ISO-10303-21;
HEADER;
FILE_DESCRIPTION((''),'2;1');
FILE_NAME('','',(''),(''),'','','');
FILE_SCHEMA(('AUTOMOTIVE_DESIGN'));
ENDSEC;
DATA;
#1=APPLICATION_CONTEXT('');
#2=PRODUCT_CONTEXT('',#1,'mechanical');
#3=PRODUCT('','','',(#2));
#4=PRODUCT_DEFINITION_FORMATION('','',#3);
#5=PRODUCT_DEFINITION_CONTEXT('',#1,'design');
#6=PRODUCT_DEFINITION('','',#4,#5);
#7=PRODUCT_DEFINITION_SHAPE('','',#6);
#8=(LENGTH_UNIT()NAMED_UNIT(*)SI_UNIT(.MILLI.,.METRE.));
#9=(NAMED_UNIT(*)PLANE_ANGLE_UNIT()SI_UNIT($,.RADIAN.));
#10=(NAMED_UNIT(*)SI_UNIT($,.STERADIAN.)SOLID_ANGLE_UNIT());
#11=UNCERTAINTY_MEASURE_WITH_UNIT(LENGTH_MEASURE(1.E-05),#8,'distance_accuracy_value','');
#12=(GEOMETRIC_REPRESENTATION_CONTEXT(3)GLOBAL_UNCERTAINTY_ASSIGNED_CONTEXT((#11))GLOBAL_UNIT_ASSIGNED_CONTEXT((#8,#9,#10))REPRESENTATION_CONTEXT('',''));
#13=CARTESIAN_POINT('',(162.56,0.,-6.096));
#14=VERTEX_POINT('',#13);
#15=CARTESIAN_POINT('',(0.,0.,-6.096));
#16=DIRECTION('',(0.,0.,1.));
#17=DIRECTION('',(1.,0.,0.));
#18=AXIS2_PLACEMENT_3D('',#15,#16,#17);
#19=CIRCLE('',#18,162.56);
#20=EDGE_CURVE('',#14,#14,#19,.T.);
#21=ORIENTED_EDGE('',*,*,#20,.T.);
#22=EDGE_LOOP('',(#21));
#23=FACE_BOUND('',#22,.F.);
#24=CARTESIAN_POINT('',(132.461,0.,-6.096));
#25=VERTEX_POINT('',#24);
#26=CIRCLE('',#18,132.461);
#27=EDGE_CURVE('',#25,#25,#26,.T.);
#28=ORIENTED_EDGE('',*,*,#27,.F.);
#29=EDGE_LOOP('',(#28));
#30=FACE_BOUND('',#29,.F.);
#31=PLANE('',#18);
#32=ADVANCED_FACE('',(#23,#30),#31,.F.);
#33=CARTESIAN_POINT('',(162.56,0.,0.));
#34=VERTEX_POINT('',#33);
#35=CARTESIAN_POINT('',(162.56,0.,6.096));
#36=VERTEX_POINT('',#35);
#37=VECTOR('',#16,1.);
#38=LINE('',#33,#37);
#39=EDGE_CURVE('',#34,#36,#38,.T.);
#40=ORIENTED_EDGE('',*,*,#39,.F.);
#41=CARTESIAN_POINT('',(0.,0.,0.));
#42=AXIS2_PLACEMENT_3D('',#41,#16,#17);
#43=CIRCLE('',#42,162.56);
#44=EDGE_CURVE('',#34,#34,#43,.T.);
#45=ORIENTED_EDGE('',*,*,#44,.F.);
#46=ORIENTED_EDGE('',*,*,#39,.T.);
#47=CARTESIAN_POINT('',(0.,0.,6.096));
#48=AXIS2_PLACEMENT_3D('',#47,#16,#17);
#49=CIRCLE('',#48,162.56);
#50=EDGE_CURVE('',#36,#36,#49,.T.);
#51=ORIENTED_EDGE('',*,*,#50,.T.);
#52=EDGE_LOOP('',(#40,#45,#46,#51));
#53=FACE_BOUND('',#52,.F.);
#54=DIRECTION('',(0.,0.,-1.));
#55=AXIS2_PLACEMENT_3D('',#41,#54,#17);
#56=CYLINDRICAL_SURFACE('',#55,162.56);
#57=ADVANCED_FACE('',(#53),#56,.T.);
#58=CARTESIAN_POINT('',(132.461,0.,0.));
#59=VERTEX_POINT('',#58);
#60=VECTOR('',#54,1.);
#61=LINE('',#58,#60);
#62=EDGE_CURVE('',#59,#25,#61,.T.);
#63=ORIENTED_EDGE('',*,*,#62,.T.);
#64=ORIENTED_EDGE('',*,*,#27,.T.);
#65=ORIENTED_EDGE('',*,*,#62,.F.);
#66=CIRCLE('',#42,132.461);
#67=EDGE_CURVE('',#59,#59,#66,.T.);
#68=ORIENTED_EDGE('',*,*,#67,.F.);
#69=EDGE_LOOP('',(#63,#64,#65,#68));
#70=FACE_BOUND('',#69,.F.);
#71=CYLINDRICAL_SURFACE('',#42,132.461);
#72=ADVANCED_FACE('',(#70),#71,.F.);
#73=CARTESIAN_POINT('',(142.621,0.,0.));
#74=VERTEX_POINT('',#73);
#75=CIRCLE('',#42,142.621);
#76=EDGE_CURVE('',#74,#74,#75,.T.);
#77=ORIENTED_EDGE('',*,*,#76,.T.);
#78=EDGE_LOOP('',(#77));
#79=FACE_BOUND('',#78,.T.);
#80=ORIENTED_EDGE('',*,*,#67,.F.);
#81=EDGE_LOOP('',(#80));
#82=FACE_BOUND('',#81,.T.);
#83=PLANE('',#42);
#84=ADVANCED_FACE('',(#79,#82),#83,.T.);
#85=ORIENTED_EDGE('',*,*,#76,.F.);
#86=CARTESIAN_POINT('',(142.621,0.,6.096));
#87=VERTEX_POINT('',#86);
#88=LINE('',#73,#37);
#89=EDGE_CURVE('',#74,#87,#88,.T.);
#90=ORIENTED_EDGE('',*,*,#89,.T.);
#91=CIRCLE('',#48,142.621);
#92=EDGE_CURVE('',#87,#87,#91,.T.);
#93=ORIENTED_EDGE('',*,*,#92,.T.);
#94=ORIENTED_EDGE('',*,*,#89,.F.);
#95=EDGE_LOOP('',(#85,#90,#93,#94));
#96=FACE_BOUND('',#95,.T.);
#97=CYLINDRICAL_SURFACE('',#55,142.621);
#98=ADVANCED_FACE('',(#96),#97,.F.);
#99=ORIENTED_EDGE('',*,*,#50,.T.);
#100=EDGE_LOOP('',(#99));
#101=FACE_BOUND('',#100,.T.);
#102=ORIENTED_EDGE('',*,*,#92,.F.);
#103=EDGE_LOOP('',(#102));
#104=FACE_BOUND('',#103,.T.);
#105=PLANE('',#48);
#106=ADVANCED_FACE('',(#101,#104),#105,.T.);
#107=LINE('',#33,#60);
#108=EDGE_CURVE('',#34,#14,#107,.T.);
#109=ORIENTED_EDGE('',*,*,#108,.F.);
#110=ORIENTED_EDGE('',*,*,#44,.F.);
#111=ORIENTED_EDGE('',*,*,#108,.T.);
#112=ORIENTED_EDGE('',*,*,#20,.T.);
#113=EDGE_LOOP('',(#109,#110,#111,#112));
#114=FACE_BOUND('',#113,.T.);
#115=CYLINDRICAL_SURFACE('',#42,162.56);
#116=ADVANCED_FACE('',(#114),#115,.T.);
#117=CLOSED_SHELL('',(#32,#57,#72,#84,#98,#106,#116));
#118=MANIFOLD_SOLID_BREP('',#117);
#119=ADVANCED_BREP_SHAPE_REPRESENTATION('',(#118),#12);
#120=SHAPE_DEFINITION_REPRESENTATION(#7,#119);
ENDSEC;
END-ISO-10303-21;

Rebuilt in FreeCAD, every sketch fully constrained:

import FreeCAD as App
import Part
import Sketcher
Q = App.Units.Quantity

doc = App.newDocument("Part")
params = doc.addObject("Spreadsheet::Sheet", "Params")
for row, (alias, value) in enumerate([
    ("sketch1_diameter", "12.8 in"),
    ("sketch1_diameter2", "10.43 in"),
    ("pad1_length", "0.24 in"),
    ("sketch2_diameter", "12.8 in"),
    ("sketch2_diameter2", "11.23 in"),
    ("pad2_length", "0.24 in"),
], start=1):
    params.set(f"A{row}", alias)
    params.set(f"B{row}", "=" + value)
    params.setAlias(f"B{row}", alias)

body = doc.addObject("PartDesign::Body", "Body")

# Sketch on XY plane
sketch1 = body.newObject("Sketcher::SketchObject", "Sketch")
sketch1.AttachmentSupport = (doc.getObject("XY_Plane"), [""])
sketch1.MapMode = "FlatFace"
sketch1.addGeometry(Part.Circle(App.Vector(0, 0, 0), App.Vector(0, 0, 1), 163), False)
sketch1.addGeometry(Part.Circle(App.Vector(0, 0, 0), App.Vector(0, 0, 1), 132), False)
sketch1.addConstraint(Sketcher.Constraint("Coincident", 0, 3, -1, 1))
sketch1.addConstraint(Sketcher.Constraint("Coincident", 1, 3, -1, 1))
sketch1.addConstraint(Sketcher.Constraint("Diameter", 0, Q("12.8 in")))
sketch1.addConstraint(Sketcher.Constraint("Diameter", 1, Q("10.43 in")))
sketch1.setExpression("Constraints[2]", "Params.sketch1_diameter")
sketch1.setExpression("Constraints[3]", "Params.sketch1_diameter2")
pad1 = body.newObject("PartDesign::Pad", "Pad")
pad1.Profile = sketch1
pad1.setExpression("Length", "Params.pad1_length")
pad1.Reversed = True

# Sketch on XY plane
sketch2 = body.newObject("Sketcher::SketchObject", "Sketch001")
sketch2.AttachmentSupport = (doc.getObject("XY_Plane"), [""])
sketch2.MapMode = "FlatFace"
sketch2.addGeometry(Part.Circle(App.Vector(0, 0, 0), App.Vector(0, 0, 1), 163), False)
sketch2.addGeometry(Part.Circle(App.Vector(0, 0, 0), App.Vector(0, 0, 1), 143), False)
sketch2.addConstraint(Sketcher.Constraint("Coincident", 0, 3, -1, 1))
sketch2.addConstraint(Sketcher.Constraint("Coincident", 1, 3, -1, 1))
sketch2.addConstraint(Sketcher.Constraint("Diameter", 0, Q("12.8 in")))
sketch2.addConstraint(Sketcher.Constraint("Diameter", 1, Q("11.23 in")))
sketch2.setExpression("Constraints[2]", "Params.sketch2_diameter")
sketch2.setExpression("Constraints[3]", "Params.sketch2_diameter2")
pad2 = body.newObject("PartDesign::Pad", "Pad001")
pad2.Profile = sketch2
pad2.setExpression("Length", "Params.pad2_length")

doc.recompute()
